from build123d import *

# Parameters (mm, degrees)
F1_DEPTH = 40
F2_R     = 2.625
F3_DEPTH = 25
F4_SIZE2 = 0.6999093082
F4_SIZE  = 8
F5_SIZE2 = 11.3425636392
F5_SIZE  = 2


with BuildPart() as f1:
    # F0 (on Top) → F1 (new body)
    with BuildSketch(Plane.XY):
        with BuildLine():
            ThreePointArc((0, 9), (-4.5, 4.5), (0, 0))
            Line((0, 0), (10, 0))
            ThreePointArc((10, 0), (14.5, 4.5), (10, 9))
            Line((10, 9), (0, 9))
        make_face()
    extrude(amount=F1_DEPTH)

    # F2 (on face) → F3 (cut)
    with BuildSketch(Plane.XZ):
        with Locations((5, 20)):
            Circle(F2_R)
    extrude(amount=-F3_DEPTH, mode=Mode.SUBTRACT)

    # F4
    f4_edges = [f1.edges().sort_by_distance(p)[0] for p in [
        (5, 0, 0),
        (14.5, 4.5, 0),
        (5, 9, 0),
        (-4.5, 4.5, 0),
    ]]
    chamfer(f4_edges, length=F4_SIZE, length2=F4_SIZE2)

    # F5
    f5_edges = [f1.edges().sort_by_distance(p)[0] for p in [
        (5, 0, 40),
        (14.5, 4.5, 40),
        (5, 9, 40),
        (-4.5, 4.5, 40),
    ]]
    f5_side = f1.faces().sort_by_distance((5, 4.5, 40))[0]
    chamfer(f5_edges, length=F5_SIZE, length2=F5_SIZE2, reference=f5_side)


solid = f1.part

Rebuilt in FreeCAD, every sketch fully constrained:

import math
import FreeCAD as App
import Part
import Sketcher

V = App.Vector


def edges_at(feature, points):
    """Names of the edges that pass closest to the given points."""
    edges = feature.Shape.Edges
    near = lambda p: min(range(len(edges)), key=lambda i: edges[i].distToShape(Part.Vertex(*p))[0])
    return sorted({f"Edge{near(p) + 1}" for p in points})

doc = App.newDocument("Part")
body = doc.addObject("PartDesign::Body", "Body")

sketch1 = body.newObject("Sketcher::SketchObject", "Sketch")
sketch1.AttachmentSupport = (doc.getObject("XY_Plane"), [""])
sketch1.MapMode = "FlatFace"
sketch1.addGeometry([
    Part.ArcOfCircle(Part.Circle(V(0, 4.5, 0), V(0, 0, 1), 4.5), math.radians(90), math.radians(270)),
    Part.LineSegment(V(0, 0, 0), V(10, 0, 0)),
    Part.ArcOfCircle(Part.Circle(V(10, 4.5, 0), V(0, 0, 1), 4.5), math.radians(-90), math.radians(90)),
    Part.LineSegment(V(10, 9, 0), V(0, 9, 0)),
], False)
sketch1.addConstraint([
    Sketcher.Constraint("Tangent", 0, 2, 1, 1),
    Sketcher.Constraint("Tangent", 1, 2, 2, 1),
    Sketcher.Constraint("Tangent", 2, 2, 3, 1),
    Sketcher.Constraint("Tangent", 3, 2, 0, 1),
    Sketcher.Constraint("Horizontal", 1),
    Sketcher.Constraint("Horizontal", 3),
    Sketcher.Constraint("Coincident", 0, 2, -1, 1),
    Sketcher.Constraint("Radius", 0, 4.5),
    Sketcher.Constraint("DistanceX", 1, 1, 1, 2, 10.0),
])
pad1 = body.newObject("PartDesign::Pad", "Pad")
pad1.Profile = sketch1
pad1.Length = 40

sketch2 = body.newObject("Sketcher::SketchObject", "Sketch001")
sketch2.AttachmentSupport = (doc.getObject("XZ_Plane"), [""])
sketch2.MapMode = "FlatFace"
sketch2.addGeometry(Part.Circle(V(5, 20, 0), V(0, 0, 1), 2.625), False)
sketch2.addConstraint([
    Sketcher.Constraint("Diameter", 0, 5.25),
    Sketcher.Constraint("DistanceX", -1, 1, 0, 3, 5.0),
    Sketcher.Constraint("DistanceY", -1, 1, 0, 3, 20.0),
])
pocket1 = body.newObject("PartDesign::Pocket", "Pocket")
pocket1.Profile = sketch2
pocket1.Length = 25
doc.recompute()

chamfer = body.newObject("PartDesign::Chamfer", "Chamfer")
chamfer.Base = (pocket1, edges_at(pocket1, [
    (5, 0, 0),
    (14.5, 4.5, 0),
    (5, 9, 0),
    (-4.5, 4.5, 0),
]))
chamfer.ChamferType = "Two distances"
chamfer.Size = 8
chamfer.Size2 = 0.699909
chamfer.FlipDirection = True
doc.recompute()

chamfer2 = body.newObject("PartDesign::Chamfer", "Chamfer001")
chamfer2.Base = (chamfer, edges_at(chamfer, [
    (5, 0, 40),
    (14.5, 4.5, 40),
    (5, 9, 40),
    (-4.5, 4.5, 40),
]))
chamfer2.ChamferType = "Two distances"
chamfer2.Size = 2
chamfer2.Size2 = 11.342564

doc.recompute()
